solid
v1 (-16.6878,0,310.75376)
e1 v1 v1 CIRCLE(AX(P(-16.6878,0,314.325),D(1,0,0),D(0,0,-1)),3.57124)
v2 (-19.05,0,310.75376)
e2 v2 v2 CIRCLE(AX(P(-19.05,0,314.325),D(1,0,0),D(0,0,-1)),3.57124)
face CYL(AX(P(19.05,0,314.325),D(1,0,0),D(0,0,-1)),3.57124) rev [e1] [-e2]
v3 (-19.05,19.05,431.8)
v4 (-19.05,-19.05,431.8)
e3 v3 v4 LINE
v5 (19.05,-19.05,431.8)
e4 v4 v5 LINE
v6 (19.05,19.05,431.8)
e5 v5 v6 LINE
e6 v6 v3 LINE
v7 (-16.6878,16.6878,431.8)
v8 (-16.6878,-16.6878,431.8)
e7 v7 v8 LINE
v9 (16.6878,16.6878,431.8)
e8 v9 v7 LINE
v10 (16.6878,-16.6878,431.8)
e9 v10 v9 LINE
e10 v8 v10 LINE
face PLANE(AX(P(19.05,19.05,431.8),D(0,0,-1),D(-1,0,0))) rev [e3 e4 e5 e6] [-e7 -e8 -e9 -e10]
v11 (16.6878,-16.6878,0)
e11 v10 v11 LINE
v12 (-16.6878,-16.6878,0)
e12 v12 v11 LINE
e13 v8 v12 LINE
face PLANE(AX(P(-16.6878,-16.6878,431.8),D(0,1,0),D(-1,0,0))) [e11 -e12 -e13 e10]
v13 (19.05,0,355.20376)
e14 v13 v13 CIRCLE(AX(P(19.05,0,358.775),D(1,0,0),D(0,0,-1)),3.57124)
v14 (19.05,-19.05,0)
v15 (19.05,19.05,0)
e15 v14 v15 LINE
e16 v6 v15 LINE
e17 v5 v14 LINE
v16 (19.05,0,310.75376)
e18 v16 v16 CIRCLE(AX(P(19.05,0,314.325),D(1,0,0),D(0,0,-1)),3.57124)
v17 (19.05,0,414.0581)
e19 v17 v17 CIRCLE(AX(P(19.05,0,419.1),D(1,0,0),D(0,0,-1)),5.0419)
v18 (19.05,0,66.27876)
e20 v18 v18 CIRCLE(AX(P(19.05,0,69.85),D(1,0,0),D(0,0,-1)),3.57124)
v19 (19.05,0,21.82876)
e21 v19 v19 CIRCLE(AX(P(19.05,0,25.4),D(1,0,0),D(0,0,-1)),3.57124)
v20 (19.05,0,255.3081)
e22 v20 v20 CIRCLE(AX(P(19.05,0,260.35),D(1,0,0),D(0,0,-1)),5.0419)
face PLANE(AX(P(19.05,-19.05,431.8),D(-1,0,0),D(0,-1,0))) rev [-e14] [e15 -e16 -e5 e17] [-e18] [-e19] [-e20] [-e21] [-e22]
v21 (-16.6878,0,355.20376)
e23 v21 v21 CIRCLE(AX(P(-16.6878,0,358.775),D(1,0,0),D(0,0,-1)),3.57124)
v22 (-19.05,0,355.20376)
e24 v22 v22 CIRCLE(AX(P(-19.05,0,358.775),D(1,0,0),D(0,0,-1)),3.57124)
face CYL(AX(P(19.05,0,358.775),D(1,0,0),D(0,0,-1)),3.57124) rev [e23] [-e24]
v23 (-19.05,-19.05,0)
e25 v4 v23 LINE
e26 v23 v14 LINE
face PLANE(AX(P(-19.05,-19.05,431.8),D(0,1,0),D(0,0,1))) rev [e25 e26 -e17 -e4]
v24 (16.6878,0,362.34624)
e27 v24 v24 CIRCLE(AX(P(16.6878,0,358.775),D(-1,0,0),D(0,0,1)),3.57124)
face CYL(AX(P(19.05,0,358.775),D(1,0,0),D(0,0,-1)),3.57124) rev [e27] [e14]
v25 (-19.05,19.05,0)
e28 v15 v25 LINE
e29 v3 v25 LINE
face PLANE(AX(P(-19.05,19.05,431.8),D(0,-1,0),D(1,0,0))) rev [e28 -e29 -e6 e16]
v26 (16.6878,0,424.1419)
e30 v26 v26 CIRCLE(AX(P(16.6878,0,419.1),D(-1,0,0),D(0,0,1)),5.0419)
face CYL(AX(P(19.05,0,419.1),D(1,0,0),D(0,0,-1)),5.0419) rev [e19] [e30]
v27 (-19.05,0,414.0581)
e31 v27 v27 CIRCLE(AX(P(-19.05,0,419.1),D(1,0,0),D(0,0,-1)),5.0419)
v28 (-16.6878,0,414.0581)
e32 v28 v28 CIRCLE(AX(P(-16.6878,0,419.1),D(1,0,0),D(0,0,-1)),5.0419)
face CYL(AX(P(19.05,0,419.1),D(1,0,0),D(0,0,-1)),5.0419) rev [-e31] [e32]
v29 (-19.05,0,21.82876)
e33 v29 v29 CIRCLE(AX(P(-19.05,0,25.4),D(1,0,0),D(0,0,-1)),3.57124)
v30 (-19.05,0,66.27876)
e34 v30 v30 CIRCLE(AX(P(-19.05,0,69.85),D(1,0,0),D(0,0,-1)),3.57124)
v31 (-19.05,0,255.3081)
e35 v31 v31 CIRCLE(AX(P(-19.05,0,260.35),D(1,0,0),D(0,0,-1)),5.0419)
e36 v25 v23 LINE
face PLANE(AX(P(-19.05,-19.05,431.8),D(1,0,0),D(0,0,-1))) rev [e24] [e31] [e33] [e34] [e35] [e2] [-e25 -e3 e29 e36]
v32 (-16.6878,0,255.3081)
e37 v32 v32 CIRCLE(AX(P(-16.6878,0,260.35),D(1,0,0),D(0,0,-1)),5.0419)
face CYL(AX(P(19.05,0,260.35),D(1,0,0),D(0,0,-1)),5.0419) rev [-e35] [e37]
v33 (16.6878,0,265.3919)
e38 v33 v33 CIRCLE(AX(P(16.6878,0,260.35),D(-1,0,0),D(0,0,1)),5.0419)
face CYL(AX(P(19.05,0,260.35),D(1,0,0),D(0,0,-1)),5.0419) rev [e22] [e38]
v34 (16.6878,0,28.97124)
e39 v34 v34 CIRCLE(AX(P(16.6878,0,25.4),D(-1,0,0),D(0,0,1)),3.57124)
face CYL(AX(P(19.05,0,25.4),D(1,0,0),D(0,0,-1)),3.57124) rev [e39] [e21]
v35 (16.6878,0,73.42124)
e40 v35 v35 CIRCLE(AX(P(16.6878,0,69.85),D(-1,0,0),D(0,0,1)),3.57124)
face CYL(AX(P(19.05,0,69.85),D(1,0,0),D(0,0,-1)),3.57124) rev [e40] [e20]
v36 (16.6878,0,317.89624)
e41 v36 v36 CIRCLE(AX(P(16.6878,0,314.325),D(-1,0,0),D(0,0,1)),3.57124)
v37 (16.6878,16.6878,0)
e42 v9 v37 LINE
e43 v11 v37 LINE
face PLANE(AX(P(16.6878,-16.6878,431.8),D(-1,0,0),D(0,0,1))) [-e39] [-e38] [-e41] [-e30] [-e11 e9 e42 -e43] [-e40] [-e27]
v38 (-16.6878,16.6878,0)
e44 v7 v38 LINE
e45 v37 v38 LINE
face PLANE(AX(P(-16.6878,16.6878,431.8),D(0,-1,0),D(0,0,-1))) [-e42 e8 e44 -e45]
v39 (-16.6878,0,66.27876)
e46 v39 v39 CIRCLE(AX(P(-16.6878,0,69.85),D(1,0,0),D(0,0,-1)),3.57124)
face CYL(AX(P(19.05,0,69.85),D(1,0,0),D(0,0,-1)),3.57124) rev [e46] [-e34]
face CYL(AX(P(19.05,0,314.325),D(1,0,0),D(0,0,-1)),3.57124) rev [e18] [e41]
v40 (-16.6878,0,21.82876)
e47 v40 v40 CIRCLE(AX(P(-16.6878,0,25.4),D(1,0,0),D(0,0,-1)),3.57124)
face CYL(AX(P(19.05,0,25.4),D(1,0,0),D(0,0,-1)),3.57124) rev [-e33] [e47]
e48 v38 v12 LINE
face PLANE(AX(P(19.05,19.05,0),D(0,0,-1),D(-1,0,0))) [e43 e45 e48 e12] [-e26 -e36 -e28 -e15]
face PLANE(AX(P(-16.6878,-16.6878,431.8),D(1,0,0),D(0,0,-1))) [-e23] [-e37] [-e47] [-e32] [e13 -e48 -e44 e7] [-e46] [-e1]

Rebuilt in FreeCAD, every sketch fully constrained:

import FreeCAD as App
import Part
import Sketcher

V = App.Vector
Q = App.Units.Quantity

doc = App.newDocument("Part")
body = doc.addObject("PartDesign::Body", "Body")

sketch1 = body.newObject("Sketcher::SketchObject", "Sketch")
sketch1.AttachmentSupport = (doc.getObject("XY_Plane"), [""])
sketch1.MapMode = "FlatFace"
sketch1.addGeometry([
    Part.LineSegment(V(-19, 19, 0), V(-19, -19, 0)),
    Part.LineSegment(V(-19, -19, 0), V(19, -19, 0)),
    Part.LineSegment(V(19, -19, 0), V(19, 19, 0)),
    Part.LineSegment(V(19, 19, 0), V(-19, 19, 0)),
    Part.LineSegment(V(17, -17, 0), V(-17, -17, 0)),
    Part.LineSegment(V(-17, -17, 0), V(-17, 17, 0)),
    Part.LineSegment(V(-17, 17, 0), V(17, 17, 0)),
    Part.LineSegment(V(17, 17, 0), V(17, -17, 0)),
], False)
sketch1.addConstraint([
    Sketcher.Constraint("Coincident", 0, 2, 1, 1),
    Sketcher.Constraint("Coincident", 1, 2, 2, 1),
    Sketcher.Constraint("Coincident", 2, 2, 3, 1),
    Sketcher.Constraint("Coincident", 3, 2, 0, 1),
    Sketcher.Constraint("Coincident", 4, 2, 5, 1),
    Sketcher.Constraint("Coincident", 5, 2, 6, 1),
    Sketcher.Constraint("Coincident", 6, 2, 7, 1),
    Sketcher.Constraint("Coincident", 7, 2, 4, 1),
    Sketcher.Constraint("Vertical", 0),
    Sketcher.Constraint("Horizontal", 1),
    Sketcher.Constraint("Vertical", 2),
    Sketcher.Constraint("Horizontal", 3),
    Sketcher.Constraint("Horizontal", 4),
    Sketcher.Constraint("Vertical", 5),
    Sketcher.Constraint("Horizontal", 6),
    Sketcher.Constraint("Vertical", 7),
    Sketcher.Constraint("Symmetric", 0, 2, 2, 2, -1, 1),
    Sketcher.Constraint("Symmetric", 4, 2, 6, 2, -1, 1),
    Sketcher.Constraint("Equal", 3, 0),
    Sketcher.Constraint("Equal", 6, 5),
    Sketcher.Constraint("DistanceX", 1, 1, 1, 2, Q("1.5 in")),
    Sketcher.Constraint("DistanceX", 4, 2, 4, 1, Q("1.314 in")),
])
pad1 = body.newObject("PartDesign::Pad", "Pad")
pad1.Profile = sketch1
pad1.Length = Q("17 in")

sketch2 = body.newObject("Sketcher::SketchObject", "Sketch001")
sketch2.AttachmentSupport = (doc.getObject("YZ_Plane"), [""])
sketch2.MapMode = "FlatFace"
sketch2.AttachmentOffset = App.Placement(V(0, 0, 0.75 * 25.4), App.Rotation())
sketch2.addGeometry([
    Part.Circle(V(0, 358.8, 0), V(0, 0, 1), 3.6),
    Part.Circle(V(0, 314.3, 0), V(0, 0, 1), 3.6),
    Part.Circle(V(0, 69.8, 0), V(0, 0, 1), 3.6),
    Part.Circle(V(0, 25.4, 0), V(0, 0, 1), 3.6),
], False)
sketch2.addConstraint([
    Sketcher.Constraint("Equal", 0, 1),
    Sketcher.Constraint("Equal", 1, 2),
    Sketcher.Constraint("Equal", 2, 3),
    Sketcher.Constraint("PointOnObject", 0, 3, -2),
    Sketcher.Constraint("PointOnObject", 1, 3, -2),
    Sketcher.Constraint("PointOnObject", 2, 3, -2),
    Sketcher.Constraint("PointOnObject", 3, 3, -2),
    Sketcher.Constraint("DistanceY", -1, 1, 3, 3, Q("1 in")),
    Sketcher.Constraint("Diameter", 0, Q("0.2812 in")),
    Sketcher.Constraint("DistanceY", -1, 1, 2, 3, Q("2.75 in")),
    Sketcher.Constraint("DistanceY", 1, 3, 0, 3, Q("1.75 in")),
    Sketcher.Constraint("DistanceY", -1, 1, 0, 3, Q("14.125 in")),
])
doc.recompute()
hole = body.newObject("PartDesign::Hole", "Hole")
hole.Profile = sketch2
hole.ThreadType = "None"
hole.Diameter = Q("0.2812 in")
hole.DepthType = "ThroughAll"

sketch3 = body.newObject("Sketcher::SketchObject", "Sketch002")
sketch3.AttachmentSupport = (doc.getObject("YZ_Plane"), [""])
sketch3.MapMode = "FlatFace"
sketch3.AttachmentOffset = App.Placement(V(0, 0, 0.75 * 25.4), App.Rotation())
sketch3.addGeometry([
    Part.Circle(V(0, 419, 0), V(0, 0, 1), 5),
    Part.Circle(V(0, 260, 0), V(0, 0, 1), 5),
], False)
sketch3.addConstraint([
    Sketcher.Constraint("Equal", 0, 1),
    Sketcher.Constraint("PointOnObject", 0, 3, -2),
    Sketcher.Constraint("PointOnObject", 1, 3, -2),
    Sketcher.Constraint("Diameter", 0, Q("0.397 in")),
    Sketcher.Constraint("DistanceY", -1, 1, 0, 3, Q("16.5 in")),
    Sketcher.Constraint("DistanceY", -1, 1, 1, 3, Q("10.25 in")),
])
doc.recompute()
hole2 = body.newObject("PartDesign::Hole", "Hole001")
hole2.Profile = sketch3
hole2.ThreadType = "None"
hole2.Diameter = Q("0.397 in")
hole2.DepthType = "ThroughAll"

doc.recompute()
